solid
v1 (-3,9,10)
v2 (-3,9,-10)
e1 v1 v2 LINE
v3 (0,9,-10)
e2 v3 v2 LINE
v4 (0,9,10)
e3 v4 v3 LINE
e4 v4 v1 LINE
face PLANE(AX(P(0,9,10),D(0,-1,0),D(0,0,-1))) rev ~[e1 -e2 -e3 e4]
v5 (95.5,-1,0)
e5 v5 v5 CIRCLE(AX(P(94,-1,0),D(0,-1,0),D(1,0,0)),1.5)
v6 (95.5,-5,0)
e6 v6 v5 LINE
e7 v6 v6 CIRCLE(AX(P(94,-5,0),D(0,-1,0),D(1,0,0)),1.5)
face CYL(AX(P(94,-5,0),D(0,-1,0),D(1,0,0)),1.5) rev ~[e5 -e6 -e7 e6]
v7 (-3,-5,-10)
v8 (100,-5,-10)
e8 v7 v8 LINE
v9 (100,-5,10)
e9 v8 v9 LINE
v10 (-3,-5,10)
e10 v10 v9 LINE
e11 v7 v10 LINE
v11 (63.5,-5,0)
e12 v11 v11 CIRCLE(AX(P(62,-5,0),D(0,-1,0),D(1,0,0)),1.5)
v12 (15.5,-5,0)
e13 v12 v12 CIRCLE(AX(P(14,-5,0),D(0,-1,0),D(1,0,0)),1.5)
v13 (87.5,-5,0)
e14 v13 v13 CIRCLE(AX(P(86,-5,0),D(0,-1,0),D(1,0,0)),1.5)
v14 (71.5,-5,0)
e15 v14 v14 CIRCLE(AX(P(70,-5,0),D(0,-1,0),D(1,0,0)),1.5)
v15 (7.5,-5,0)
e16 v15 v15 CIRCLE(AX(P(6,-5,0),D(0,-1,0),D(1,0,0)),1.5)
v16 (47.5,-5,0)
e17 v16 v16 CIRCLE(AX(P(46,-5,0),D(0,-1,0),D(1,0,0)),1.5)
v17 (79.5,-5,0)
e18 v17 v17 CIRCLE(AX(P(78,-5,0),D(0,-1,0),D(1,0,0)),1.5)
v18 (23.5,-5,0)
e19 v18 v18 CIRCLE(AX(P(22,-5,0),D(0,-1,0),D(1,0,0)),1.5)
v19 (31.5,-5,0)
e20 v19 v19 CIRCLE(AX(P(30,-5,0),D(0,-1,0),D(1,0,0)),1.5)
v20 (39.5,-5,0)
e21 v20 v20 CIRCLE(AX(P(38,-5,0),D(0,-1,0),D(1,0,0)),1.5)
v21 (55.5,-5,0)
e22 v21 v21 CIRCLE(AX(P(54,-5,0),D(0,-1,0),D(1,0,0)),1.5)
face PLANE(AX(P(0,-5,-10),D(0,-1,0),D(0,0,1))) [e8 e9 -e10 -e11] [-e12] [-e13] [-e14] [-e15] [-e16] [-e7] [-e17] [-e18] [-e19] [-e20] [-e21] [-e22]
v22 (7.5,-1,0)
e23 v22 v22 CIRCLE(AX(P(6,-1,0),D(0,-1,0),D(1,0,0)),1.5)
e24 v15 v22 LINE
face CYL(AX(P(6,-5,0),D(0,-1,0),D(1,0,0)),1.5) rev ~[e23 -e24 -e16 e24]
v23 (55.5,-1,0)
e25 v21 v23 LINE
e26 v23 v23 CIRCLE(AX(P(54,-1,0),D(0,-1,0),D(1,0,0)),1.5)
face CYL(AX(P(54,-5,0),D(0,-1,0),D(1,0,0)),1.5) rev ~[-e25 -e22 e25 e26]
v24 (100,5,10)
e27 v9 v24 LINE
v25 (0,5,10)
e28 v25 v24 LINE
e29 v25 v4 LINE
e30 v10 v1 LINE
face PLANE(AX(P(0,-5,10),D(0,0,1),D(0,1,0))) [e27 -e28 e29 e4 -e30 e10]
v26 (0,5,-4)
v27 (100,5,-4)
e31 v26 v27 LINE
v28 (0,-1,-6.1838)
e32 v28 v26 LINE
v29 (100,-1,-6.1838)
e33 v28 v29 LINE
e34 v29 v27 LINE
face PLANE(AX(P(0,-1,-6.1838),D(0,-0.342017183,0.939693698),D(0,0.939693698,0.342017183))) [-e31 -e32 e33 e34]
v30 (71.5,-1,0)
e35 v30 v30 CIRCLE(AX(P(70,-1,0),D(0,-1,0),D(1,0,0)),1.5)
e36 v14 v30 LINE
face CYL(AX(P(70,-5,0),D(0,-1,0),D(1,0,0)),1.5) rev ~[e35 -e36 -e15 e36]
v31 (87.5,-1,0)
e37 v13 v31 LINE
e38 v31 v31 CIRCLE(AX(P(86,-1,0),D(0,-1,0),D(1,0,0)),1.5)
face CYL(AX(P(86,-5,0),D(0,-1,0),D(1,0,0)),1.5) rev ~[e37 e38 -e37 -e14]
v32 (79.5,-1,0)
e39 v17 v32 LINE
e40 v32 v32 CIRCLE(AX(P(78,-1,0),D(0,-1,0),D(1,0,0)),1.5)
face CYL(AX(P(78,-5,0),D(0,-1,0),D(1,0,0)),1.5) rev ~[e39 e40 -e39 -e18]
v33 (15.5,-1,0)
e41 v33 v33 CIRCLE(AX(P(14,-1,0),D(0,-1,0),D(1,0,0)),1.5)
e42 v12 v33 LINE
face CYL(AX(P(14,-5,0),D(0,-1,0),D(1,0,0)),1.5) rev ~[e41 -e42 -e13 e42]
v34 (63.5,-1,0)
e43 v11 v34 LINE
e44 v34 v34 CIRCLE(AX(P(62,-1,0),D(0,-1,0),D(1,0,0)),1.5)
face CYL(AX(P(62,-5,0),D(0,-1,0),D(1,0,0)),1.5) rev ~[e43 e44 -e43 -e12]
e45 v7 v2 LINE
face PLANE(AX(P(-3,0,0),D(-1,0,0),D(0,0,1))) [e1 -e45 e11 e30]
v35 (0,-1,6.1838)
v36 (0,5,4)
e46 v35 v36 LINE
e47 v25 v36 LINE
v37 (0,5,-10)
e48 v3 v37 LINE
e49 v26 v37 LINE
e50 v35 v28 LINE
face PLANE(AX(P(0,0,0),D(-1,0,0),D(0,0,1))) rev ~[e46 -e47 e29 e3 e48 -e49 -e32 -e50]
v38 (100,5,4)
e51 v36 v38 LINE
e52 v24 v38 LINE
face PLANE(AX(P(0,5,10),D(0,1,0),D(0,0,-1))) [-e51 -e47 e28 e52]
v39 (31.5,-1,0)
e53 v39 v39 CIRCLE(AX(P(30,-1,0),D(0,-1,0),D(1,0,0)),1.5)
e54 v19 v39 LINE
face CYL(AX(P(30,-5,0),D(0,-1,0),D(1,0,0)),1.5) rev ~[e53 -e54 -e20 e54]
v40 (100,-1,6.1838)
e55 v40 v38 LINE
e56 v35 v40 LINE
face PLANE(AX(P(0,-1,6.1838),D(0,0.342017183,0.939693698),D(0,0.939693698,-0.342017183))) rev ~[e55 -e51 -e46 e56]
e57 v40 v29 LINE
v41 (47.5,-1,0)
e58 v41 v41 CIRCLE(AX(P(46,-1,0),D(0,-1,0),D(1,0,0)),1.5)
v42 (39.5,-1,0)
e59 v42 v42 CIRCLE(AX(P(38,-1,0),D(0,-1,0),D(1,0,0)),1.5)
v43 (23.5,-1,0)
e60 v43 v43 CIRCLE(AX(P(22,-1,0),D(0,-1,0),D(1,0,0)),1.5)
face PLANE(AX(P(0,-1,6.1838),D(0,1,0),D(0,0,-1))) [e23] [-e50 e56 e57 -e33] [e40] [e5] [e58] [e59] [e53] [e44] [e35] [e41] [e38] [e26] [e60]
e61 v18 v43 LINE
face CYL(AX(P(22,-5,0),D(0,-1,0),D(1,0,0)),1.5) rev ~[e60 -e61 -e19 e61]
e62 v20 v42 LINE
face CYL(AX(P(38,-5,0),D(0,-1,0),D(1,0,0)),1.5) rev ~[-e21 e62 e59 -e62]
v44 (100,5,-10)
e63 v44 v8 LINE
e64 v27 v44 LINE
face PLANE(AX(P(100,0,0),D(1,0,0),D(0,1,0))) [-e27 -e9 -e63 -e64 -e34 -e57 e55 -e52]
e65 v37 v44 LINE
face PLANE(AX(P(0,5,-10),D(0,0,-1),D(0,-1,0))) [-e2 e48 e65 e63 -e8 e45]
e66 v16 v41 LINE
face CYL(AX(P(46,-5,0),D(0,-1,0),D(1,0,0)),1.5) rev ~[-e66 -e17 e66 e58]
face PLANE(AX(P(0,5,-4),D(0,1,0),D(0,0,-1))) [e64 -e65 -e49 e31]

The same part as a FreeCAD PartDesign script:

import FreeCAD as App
import Part
import Sketcher
Q = App.Units.Quantity


def add_polygon(sketch, points):
    """Adds a closed chain of lines whose ends are joined by coincident constraints."""
    first, n = sketch.GeometryCount, len(points)
    for a, b in zip(points, points[1:] + points[:1]):
        sketch.addGeometry(Part.LineSegment(App.Vector(*a, 0), App.Vector(*b, 0)), False)
    for i in range(n):
        sketch.addConstraint(Sketcher.Constraint("Coincident", first + i, 2, first + (i + 1) % n, 1))

doc = App.newDocument("Part")
body = doc.addObject("PartDesign::Body", "Body")

# Sketch on YZ plane
sketch1 = doc.addObject("Sketcher::SketchObject", "Sketch")
body.addObject(sketch1)
sketch1.AttachmentSupport = (doc.YZ_Plane, [""])
sketch1.MapMode = "FlatFace"
add_polygon(sketch1, [(5, 10), (-5, 10), (-5, -10), (5, -10), (5, -4), (-1, -6.1838), (-1, 6.1838), (5, 4)])  # lines 0-7
sketch1.addConstraint([
    Sketcher.Constraint("Horizontal", 0),
    Sketcher.Constraint("Vertical", 1),
    Sketcher.Constraint("Horizontal", 2),
    Sketcher.Constraint("Vertical", 3),
    Sketcher.Constraint("Vertical", 5),
    Sketcher.Constraint("Vertical", 7),
    Sketcher.Constraint("Symmetric", 0, 2, 2, 2, -1, 1),
    Sketcher.Constraint("Symmetric", 3, 2, 6, 2, -1),
    Sketcher.Constraint("Equal", 4, 6),
    Sketcher.Constraint("DistanceX", 0, 2, 0, 1, Q("10 mm")),
    Sketcher.Constraint("DistanceY", 1, 2, 1, 1, Q("20 mm")),
    Sketcher.Constraint("DistanceY", 3, 1, 3, 2, Q("6 mm")),
    Sketcher.Constraint("Angle", 6, Q("-19.9998 deg")),
    Sketcher.Constraint("DistanceX", 4, 2, 3, 2, Q("6 mm")),
])
pad1 = doc.addObject("PartDesign::Pad", "Pad")
body.addObject(pad1)
pad1.Profile = sketch1
pad1.Length = 100

# Sketch on YZ plane
sketch2 = doc.addObject("Sketcher::SketchObject", "Sketch001")
body.addObject(sketch2)
sketch2.AttachmentSupport = (doc.YZ_Plane, [""])
sketch2.MapMode = "FlatFace"
add_polygon(sketch2, [(9, -10), (-5, -10), (-5, 10), (9, 10)])  # lines 0-3
sketch2.addConstraint([
    Sketcher.Constraint("Horizontal", 0),
    Sketcher.Constraint("Vertical", 1),
    Sketcher.Constraint("Horizontal", 2),
    Sketcher.Constraint("Vertical", 3),
    Sketcher.Constraint("DistanceX", 0, 2, 0, 1, Q("14 mm")),
    Sketcher.Constraint("DistanceY", 1, 1, 1, 2, Q("20 mm")),
    Sketcher.Constraint("DistanceX", 0, 2, -1, 1, Q("5 mm")),
    Sketcher.Constraint("DistanceY", 0, 2, -1, 1, Q("10 mm")),
])
pad2 = doc.addObject("PartDesign::Pad", "Pad001")
body.addObject(pad2)
pad2.Profile = sketch2
pad2.Length = 3
pad2.Reversed = True

# Sketch on XZ plane
sketch3 = doc.addObject("Sketcher::SketchObject", "Sketch002")
body.addObject(sketch3)
sketch3.AttachmentSupport = (doc.XZ_Plane, [""])
sketch3.MapMode = "FlatFace"
sketch3.AttachmentOffset = App.Placement(App.Vector(0, 0, 5), App.Rotation())
sketch3.addGeometry([
    Part.Circle(App.Vector(94, 0, 0), App.Vector(0, 0, 1), 1.5),  # 0
    Part.Circle(App.Vector(86, 0, 0), App.Vector(0, 0, 1), 1.5),  # 1
    Part.Circle(App.Vector(78, 0, 0), App.Vector(0, 0, 1), 1.5),  # 2
    Part.Circle(App.Vector(70, 0, 0), App.Vector(0, 0, 1), 1.5),  # 3
    Part.Circle(App.Vector(62, 0, 0), App.Vector(0, 0, 1), 1.5),  # 4
    Part.Circle(App.Vector(54, 0, 0), App.Vector(0, 0, 1), 1.5),  # 5
    Part.Circle(App.Vector(46, 0, 0), App.Vector(0, 0, 1), 1.5),  # 6
    Part.Circle(App.Vector(38, 0, 0), App.Vector(0, 0, 1), 1.5),  # 7
    Part.Circle(App.Vector(30, 0, 0), App.Vector(0, 0, 1), 1.5),  # 8
    Part.Circle(App.Vector(22, 0, 0), App.Vector(0, 0, 1), 1.5),  # 9
    Part.Circle(App.Vector(14, 0, 0), App.Vector(0, 0, 1), 1.5),  # 10
    Part.Circle(App.Vector(6, 0, 0), App.Vector(0, 0, 1), 1.5),  # 11
], False)
sketch3.addConstraint([
    Sketcher.Constraint("Equal", 0, 1),
    Sketcher.Constraint("Equal", 1, 2),
    Sketcher.Constraint("Equal", 2, 3),
    Sketcher.Constraint("Equal", 3, 4),
    Sketcher.Constraint("Equal", 4, 5),
    Sketcher.Constraint("Equal", 5, 6),
    Sketcher.Constraint("Equal", 6, 7),
    Sketcher.Constraint("Equal", 7, 8),
    Sketcher.Constraint("Equal", 8, 9),
    Sketcher.Constraint("Equal", 9, 10),
    Sketcher.Constraint("Equal", 10, 11),
    Sketcher.Constraint("PointOnObject", 0, 3, -1),
    Sketcher.Constraint("PointOnObject", 1, 3, -1),
    Sketcher.Constraint("PointOnObject", 2, 3, -1),
    Sketcher.Constraint("PointOnObject", 3, 3, -1),
    Sketcher.Constraint("PointOnObject", 4, 3, -1),
    Sketcher.Constraint("PointOnObject", 5, 3, -1),
    Sketcher.Constraint("PointOnObject", 6, 3, -1),
    Sketcher.Constraint("PointOnObject", 7, 3, -1),
    Sketcher.Constraint("PointOnObject", 8, 3, -1),
    Sketcher.Constraint("PointOnObject", 9, 3, -1),
    Sketcher.Constraint("PointOnObject", 10, 3, -1),
    Sketcher.Constraint("PointOnObject", 11, 3, -1),
    Sketcher.Constraint("Diameter", 0, Q("3 mm")),
    Sketcher.Constraint("DistanceX", -1, 1, 0, 3, Q("94 mm")),
    Sketcher.Constraint("DistanceX", -1, 1, 1, 3, Q("86 mm")),
    Sketcher.Constraint("DistanceX", -1, 1, 2, 3, Q("78 mm")),
    Sketcher.Constraint("DistanceX", -1, 1, 3, 3, Q("70 mm")),
    Sketcher.Constraint("DistanceX", -1, 1, 4, 3, Q("62 mm")),
    Sketcher.Constraint("DistanceX", -1, 1, 5, 3, Q("54 mm")),
    Sketcher.Constraint("DistanceX", -1, 1, 6, 3, Q("46 mm")),
    Sketcher.Constraint("DistanceX", -1, 1, 7, 3, Q("38 mm")),
    Sketcher.Constraint("DistanceX", -1, 1, 8, 3, Q("30 mm")),
    Sketcher.Constraint("DistanceX", -1, 1, 9, 3, Q("22 mm")),
    Sketcher.Constraint("DistanceX", -1, 1, 10, 3, Q("14 mm")),
    Sketcher.Constraint("DistanceX", -1, 1, 11, 3, Q("6 mm")),
])
pocket1 = doc.addObject("PartDesign::Pocket", "Pocket")
body.addObject(pocket1)
pocket1.Profile = sketch3
pocket1.Type = "ThroughAll"

doc.recompute()
